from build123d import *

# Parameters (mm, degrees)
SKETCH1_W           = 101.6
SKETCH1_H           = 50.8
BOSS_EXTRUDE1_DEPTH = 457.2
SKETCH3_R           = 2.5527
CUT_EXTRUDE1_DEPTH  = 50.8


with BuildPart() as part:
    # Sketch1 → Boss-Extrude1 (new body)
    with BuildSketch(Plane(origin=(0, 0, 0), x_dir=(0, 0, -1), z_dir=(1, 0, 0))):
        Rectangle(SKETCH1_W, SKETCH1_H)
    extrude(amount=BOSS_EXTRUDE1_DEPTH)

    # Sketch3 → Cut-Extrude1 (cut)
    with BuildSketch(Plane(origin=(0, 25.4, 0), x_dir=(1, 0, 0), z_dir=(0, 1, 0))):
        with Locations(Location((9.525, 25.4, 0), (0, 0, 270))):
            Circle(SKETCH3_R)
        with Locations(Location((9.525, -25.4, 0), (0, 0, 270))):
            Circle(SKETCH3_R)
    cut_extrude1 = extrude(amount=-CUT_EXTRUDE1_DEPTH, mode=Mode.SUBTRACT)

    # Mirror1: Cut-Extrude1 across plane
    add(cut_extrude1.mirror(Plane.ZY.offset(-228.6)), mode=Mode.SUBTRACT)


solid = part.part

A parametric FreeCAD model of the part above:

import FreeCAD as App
import Part
import Sketcher
from FreeCAD import Vector
Q = App.Units.Quantity

doc = App.newDocument("Part")
params = doc.addObject("Spreadsheet::Sheet", "Params")
for row, (alias, value) in enumerate([
    ("sketch1_width", "2 in"),
    ("sketch1_height", "4 in"),
    ("pad1_length", "18 in"),
    ("sketch2_diameter", "0.201 in"),
    ("pocket1_length", "2 in"),
], start=1):
    params.set(f"A{row}", alias)
    params.set(f"B{row}", "=" + value)
    params.setAlias(f"B{row}", alias)

body = doc.addObject("PartDesign::Body", "Body")

# Sketch on YZ plane
sketch1 = body.newObject("Sketcher::SketchObject", "Sketch")
sketch1.AttachmentSupport = (doc.getObject("YZ_Plane"), [""])
sketch1.MapMode = "FlatFace"
sketch1.addGeometry([
    Part.LineSegment(Vector(25, 51, 0), Vector(-25, 51, 0)),
    Part.LineSegment(Vector(-25, 51, 0), Vector(-25, -51, 0)),
    Part.LineSegment(Vector(-25, -51, 0), Vector(25, -51, 0)),
    Part.LineSegment(Vector(25, -51, 0), Vector(25, 51, 0)),
], False)
sketch1.addConstraint([
    Sketcher.Constraint("Coincident", 0, 2, 1, 1),
    Sketcher.Constraint("Coincident", 1, 2, 2, 1),
    Sketcher.Constraint("Coincident", 2, 2, 3, 1),
    Sketcher.Constraint("Coincident", 3, 2, 0, 1),
    Sketcher.Constraint("Horizontal", 0),
    Sketcher.Constraint("Vertical", 1),
    Sketcher.Constraint("Horizontal", 2),
    Sketcher.Constraint("Vertical", 3),
    Sketcher.Constraint("Symmetric", 0, 2, 2, 2, -1, 1),
    Sketcher.Constraint("DistanceX", 0, 2, 0, 1, Q("2 in")),
    Sketcher.Constraint("DistanceY", 1, 2, 1, 1, Q("4 in")),
])
sketch1.setExpression("Constraints[9]", "Params.sketch1_width")
sketch1.setExpression("Constraints[10]", "Params.sketch1_height")
pad1 = body.newObject("PartDesign::Pad", "Pad")
pad1.Profile = sketch1
pad1.setExpression("Length", "Params.pad1_length")

# Sketch on XZ plane
sketch2 = body.newObject("Sketcher::SketchObject", "Sketch001")
sketch2.AttachmentSupport = (doc.getObject("XZ_Plane"), [""])
sketch2.MapMode = "FlatFace"
sketch2.AttachmentOffset = App.Placement(Vector(0, 0, -1 * 25.4), App.Rotation())
sketch2.addGeometry([
    Part.Circle(Vector(9.5, -25.4, 0), Vector(0, 0, 1), 2.6),
    Part.Circle(Vector(9.5, 25.4, 0), Vector(0, 0, 1), 2.6),
], False)
sketch2.addConstraint([
    Sketcher.Constraint("Equal", 0, 1),
    Sketcher.Constraint("Symmetric", 0, 3, 1, 3, -1),
    Sketcher.Constraint("Diameter", 0, Q("0.201 in")),
    Sketcher.Constraint("DistanceY", 0, 3, -1, 1, Q("1 in")),
    Sketcher.Constraint("DistanceX", -1, 1, 0, 3, Q("0.375 in")),
])
sketch2.setExpression("Constraints[2]", "Params.sketch2_diameter")
pocket1 = body.newObject("PartDesign::Pocket", "Pocket")
pocket1.Profile = sketch2
pocket1.setExpression("Length", "Params.pocket1_length")
pocket1.Reversed = True
doc.recompute()

datumplane = body.newObject("PartDesign::Plane", "DatumPlane")
datumplane.AttachmentSupport = (doc.getObject("YZ_Plane"), [""])
datumplane.MapMode = "FlatFace"
datumplane.AttachmentOffset = App.Placement(Vector(0, 0, 9 * 25.4), App.Rotation())
mirrored = body.newObject("PartDesign::Mirrored", "Mirrored")
mirrored.Originals = [pocket1]
mirrored.MirrorPlane = (datumplane, [""])
body.Tip = mirrored

doc.recompute()
